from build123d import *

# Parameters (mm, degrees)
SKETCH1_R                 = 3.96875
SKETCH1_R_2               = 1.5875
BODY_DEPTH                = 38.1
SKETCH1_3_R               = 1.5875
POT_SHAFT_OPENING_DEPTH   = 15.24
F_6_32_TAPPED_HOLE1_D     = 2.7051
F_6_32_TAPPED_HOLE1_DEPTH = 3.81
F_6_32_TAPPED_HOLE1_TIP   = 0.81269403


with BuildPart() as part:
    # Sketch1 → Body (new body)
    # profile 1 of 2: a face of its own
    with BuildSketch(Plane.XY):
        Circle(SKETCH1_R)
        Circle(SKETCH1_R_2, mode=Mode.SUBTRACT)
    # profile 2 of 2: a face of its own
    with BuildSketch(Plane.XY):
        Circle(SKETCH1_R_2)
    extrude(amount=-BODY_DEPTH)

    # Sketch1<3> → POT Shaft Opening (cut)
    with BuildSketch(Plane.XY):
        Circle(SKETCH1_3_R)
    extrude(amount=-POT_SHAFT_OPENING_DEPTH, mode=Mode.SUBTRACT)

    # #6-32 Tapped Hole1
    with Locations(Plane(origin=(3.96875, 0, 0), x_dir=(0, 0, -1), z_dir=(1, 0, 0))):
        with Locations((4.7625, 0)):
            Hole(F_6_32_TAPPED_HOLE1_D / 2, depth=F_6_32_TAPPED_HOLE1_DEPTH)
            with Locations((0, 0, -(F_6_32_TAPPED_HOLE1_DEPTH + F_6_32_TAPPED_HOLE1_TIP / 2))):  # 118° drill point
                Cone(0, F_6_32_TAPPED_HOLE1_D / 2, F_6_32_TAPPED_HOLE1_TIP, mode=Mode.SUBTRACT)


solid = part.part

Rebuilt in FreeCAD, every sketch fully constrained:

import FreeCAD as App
import Part
import Sketcher
Q = App.Units.Quantity

doc = App.newDocument("Part")
body = doc.addObject("PartDesign::Body", "Body")

# Sketch on XY plane
sketch1 = body.newObject("Sketcher::SketchObject", "Sketch")
sketch1.AttachmentSupport = (doc.getObject("XY_Plane"), [""])
sketch1.MapMode = "FlatFace"
sketch1.addGeometry(Part.Circle(App.Vector(0, 0, 0), App.Vector(0, 0, 1), 4), False)
sketch1.addConstraint([
    Sketcher.Constraint("Coincident", 0, 3, -1, 1),
    Sketcher.Constraint("Diameter", 0, Q("0.3125 in")),
])
pad1 = body.newObject("PartDesign::Pad", "Pad")
pad1.Profile = sketch1
pad1.Length = Q("1.5 in")
pad1.Reversed = True

# Sketch on XY plane
sketch2 = body.newObject("Sketcher::SketchObject", "Sketch001")
sketch2.AttachmentSupport = (doc.getObject("XY_Plane"), [""])
sketch2.MapMode = "FlatFace"
sketch2.addGeometry(Part.Circle(App.Vector(0, 0, 0), App.Vector(0, 0, 1), 1.6), False)
sketch2.addConstraint([
    Sketcher.Constraint("Coincident", 0, 3, -1, 1),
    Sketcher.Constraint("Diameter", 0, Q("0.125 in")),
])
pocket1 = body.newObject("PartDesign::Pocket", "Pocket")
pocket1.Profile = sketch2
pocket1.Length = Q("0.6 in")

# Sketch on YZ plane
sketch3 = body.newObject("Sketcher::SketchObject", "Sketch002")
sketch3.AttachmentSupport = (doc.getObject("YZ_Plane"), [""])
sketch3.MapMode = "FlatFace"
sketch3.AttachmentOffset = App.Placement(App.Vector(0, 0, 0.15625 * 25.4), App.Rotation())
sketch3.addGeometry(Part.Circle(App.Vector(0, -4.8, 0), App.Vector(0, 0, 1), 1.4), False)
sketch3.addConstraint([
    Sketcher.Constraint("PointOnObject", 0, 3, -2),
    Sketcher.Constraint("Diameter", 0, Q("0.1065 in")),
    Sketcher.Constraint("DistanceY", 0, 3, -1, 1, Q("0.1875 in")),
])
doc.recompute()
hole = body.newObject("PartDesign::Hole", "Hole")
hole.Profile = sketch3
hole.ThreadType = "None"
hole.Diameter = Q("0.1065 in")
hole.DepthType = "Dimension"
hole.Depth = Q("0.15 in")
hole.DrillPoint = "Angled"
hole.DrillPointAngle = 118

doc.recompute()
